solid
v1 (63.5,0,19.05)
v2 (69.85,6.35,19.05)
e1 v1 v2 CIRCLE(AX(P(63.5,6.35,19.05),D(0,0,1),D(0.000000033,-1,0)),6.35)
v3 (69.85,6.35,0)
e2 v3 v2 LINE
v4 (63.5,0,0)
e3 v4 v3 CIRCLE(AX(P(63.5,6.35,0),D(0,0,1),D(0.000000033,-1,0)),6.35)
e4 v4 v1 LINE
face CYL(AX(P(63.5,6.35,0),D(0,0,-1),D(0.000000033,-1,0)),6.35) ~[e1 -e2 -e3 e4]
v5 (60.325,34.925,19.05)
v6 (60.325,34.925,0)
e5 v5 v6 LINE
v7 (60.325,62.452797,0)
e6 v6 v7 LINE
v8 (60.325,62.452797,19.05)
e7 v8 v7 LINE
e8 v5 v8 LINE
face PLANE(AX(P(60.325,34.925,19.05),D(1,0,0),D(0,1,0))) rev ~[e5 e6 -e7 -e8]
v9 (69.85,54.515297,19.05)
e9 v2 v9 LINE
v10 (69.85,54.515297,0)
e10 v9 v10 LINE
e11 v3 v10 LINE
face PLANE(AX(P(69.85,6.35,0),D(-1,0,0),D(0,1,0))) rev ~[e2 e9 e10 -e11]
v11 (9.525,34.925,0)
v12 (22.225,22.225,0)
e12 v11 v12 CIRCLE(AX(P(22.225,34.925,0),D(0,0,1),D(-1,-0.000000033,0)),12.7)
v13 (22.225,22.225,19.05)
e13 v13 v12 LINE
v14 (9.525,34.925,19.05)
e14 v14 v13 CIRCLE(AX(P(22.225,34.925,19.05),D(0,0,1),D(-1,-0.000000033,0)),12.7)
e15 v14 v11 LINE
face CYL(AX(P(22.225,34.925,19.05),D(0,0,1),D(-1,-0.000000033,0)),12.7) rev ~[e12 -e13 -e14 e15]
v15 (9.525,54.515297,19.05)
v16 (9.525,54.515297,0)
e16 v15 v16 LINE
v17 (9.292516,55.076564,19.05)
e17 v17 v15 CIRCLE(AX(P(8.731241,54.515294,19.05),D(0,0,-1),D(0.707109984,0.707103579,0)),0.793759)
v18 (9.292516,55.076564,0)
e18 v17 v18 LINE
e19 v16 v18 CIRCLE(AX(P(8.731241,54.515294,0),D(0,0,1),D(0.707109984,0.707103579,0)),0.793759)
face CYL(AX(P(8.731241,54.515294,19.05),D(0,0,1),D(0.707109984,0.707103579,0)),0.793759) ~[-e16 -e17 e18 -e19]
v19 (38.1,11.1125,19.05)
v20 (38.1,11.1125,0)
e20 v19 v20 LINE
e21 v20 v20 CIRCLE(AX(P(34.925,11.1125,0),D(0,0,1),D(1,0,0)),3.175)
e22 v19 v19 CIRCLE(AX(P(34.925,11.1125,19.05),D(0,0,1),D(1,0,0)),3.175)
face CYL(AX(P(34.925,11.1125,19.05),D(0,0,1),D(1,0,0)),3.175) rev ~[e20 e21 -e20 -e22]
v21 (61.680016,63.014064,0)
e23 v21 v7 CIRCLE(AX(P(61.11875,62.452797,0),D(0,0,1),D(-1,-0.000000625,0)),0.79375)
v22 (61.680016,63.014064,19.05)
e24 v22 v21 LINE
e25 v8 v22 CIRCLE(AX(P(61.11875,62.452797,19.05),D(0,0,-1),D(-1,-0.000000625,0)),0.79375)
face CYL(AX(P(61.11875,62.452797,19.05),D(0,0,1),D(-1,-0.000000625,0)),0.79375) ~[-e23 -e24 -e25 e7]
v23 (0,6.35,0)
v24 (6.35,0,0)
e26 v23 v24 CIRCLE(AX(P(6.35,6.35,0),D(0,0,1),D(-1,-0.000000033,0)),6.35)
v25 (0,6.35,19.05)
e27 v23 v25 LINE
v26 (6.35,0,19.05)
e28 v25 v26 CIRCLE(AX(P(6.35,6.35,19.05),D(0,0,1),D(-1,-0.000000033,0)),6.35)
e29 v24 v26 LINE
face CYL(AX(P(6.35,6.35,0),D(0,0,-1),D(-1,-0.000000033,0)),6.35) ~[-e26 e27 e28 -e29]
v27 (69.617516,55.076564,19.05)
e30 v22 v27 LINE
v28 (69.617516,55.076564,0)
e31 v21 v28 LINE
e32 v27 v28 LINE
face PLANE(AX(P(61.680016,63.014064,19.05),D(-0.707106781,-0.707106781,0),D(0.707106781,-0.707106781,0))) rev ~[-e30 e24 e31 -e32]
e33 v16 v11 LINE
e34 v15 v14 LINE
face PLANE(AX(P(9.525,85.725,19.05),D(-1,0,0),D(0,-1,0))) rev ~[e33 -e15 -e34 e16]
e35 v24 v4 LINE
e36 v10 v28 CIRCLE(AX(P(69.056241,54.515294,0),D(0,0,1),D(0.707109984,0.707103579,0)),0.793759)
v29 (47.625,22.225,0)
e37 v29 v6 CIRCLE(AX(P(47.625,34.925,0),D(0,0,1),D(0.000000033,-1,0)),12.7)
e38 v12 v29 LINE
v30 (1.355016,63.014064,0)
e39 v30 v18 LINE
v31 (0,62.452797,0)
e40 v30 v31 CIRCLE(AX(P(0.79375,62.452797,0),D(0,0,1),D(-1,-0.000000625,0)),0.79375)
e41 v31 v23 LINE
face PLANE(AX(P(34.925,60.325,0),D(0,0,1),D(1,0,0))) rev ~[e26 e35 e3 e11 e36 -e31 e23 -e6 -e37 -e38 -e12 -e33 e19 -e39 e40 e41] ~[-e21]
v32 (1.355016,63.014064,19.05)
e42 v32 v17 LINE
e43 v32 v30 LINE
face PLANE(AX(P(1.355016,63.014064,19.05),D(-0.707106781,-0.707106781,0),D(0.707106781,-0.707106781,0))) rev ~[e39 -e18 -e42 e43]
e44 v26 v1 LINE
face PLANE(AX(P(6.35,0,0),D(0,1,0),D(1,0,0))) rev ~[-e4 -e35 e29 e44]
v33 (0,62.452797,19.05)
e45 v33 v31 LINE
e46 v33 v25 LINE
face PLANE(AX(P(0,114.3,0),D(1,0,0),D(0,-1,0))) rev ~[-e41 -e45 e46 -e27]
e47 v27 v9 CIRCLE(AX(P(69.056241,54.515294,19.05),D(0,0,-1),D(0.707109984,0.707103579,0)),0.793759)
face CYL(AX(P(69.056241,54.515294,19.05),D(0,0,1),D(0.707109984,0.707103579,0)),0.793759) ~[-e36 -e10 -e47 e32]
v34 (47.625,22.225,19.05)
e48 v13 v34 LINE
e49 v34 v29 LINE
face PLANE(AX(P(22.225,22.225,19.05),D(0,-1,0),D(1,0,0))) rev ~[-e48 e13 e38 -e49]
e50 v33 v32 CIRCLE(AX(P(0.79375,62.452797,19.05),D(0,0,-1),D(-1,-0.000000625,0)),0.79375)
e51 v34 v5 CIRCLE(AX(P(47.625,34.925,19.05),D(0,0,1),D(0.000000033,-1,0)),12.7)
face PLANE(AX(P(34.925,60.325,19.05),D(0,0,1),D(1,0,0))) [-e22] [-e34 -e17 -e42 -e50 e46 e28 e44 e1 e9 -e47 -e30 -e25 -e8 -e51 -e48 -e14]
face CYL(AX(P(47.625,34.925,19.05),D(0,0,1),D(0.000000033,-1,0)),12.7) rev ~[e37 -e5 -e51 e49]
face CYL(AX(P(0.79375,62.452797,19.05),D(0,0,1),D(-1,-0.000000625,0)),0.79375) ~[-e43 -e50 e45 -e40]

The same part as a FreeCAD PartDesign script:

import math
import FreeCAD as App
import Part
import Sketcher

V = App.Vector
Q = App.Units.Quantity

doc = App.newDocument("Part")
body = doc.addObject("PartDesign::Body", "Body")

sketch1 = body.newObject("Sketcher::SketchObject", "Sketch")
sketch1.AttachmentSupport = (doc.getObject("XY_Plane"), [""])
sketch1.MapMode = "FlatFace"
sketch1.addGeometry(Part.ArcOfCircle(Part.Circle(V(6, 6, 0), V(0, 0, 1), 6), math.radians(-180), math.radians(-90)), False)
sketch1.addGeometry(Part.LineSegment(V(6, 0, 0), V(64, 0, 0)), False)
sketch1.addGeometry(Part.ArcOfCircle(Part.Circle(V(63, 6, 0), V(0, 0, 1), 6), math.radians(-90), math.radians(0)), False)
sketch1.addGeometry(Part.LineSegment(V(70, 6, 0), V(70, 114, 0)), False)
sketch1.addGeometry(Part.ArcOfCircle(Part.Circle(V(63, 114, 0), V(0, 0, 1), 6), math.radians(0), math.radians(90)), False)
sketch1.addGeometry(Part.LineSegment(V(64, 121, 0), V(6, 121, 0)), False)
sketch1.addGeometry(Part.ArcOfCircle(Part.Circle(V(6, 114, 0), V(0, 0, 1), 6), math.radians(90), math.radians(180)), False)
sketch1.addGeometry(Part.LineSegment(V(0, 114, 0), V(0, 6, 0)), False)
sketch1.addConstraint(Sketcher.Constraint("Tangent", 0, 2, 1, 1))
sketch1.addConstraint(Sketcher.Constraint("Tangent", 1, 2, 2, 1))
sketch1.addConstraint(Sketcher.Constraint("Tangent", 2, 2, 3, 1))
sketch1.addConstraint(Sketcher.Constraint("Tangent", 3, 2, 4, 1))
sketch1.addConstraint(Sketcher.Constraint("Tangent", 4, 2, 5, 1))
sketch1.addConstraint(Sketcher.Constraint("Tangent", 5, 2, 6, 1))
sketch1.addConstraint(Sketcher.Constraint("Tangent", 6, 2, 7, 1))
sketch1.addConstraint(Sketcher.Constraint("Tangent", 7, 2, 0, 1))
sketch1.addConstraint(Sketcher.Constraint("Horizontal", 1))
sketch1.addConstraint(Sketcher.Constraint("Vertical", 3))
sketch1.addConstraint(Sketcher.Constraint("Horizontal", 5))
sketch1.addConstraint(Sketcher.Constraint("Vertical", 7))
sketch1.addConstraint(Sketcher.Constraint("Equal", 0, 2))
sketch1.addConstraint(Sketcher.Constraint("Equal", 2, 4))
sketch1.addConstraint(Sketcher.Constraint("Equal", 4, 6))
sketch1.addConstraint(Sketcher.Constraint("PointOnObject", 0, 2, -1))
sketch1.addConstraint(Sketcher.Constraint("PointOnObject", 6, 2, -2))
sketch1.addConstraint(Sketcher.Constraint("Radius", 0, Q("0.25 in")))
sketch1.addConstraint(Sketcher.Constraint("DistanceX", 1, 1, 1, 2, Q("2.25 in")))
sketch1.addConstraint(Sketcher.Constraint("DistanceY", 3, 1, 3, 2, Q("4.25 in")))
pad1 = body.newObject("PartDesign::Pad", "Pad")
pad1.Profile = sketch1
pad1.Length = Q("0.75 in")

sketch2 = body.newObject("Sketcher::SketchObject", "Sketch001")
sketch2.AttachmentSupport = (doc.getObject("XY_Plane"), [""])
sketch2.MapMode = "FlatFace"
sketch2.AttachmentOffset = App.Placement(V(0, 0, 0.75 * 25.4), App.Rotation())
sketch2.addGeometry(Part.Circle(V(34.9, 109.5, 0), V(0, 0, 1), 3.2), False)
sketch2.addGeometry(Part.Circle(V(34.9, 11.1, 0), V(0, 0, 1), 3.2), False)
sketch2.addGeometry(Part.LineSegment(V(47.6, 98.4, 0), V(22.2, 98.4, 0)), False)
sketch2.addGeometry(Part.ArcOfCircle(Part.Circle(V(22.2, 85.7, 0), V(0, 0, 1), 12.7), math.radians(90), math.radians(180)), False)
sketch2.addGeometry(Part.LineSegment(V(9.5, 85.7, 0), V(9.5, 34.9, 0)), False)
sketch2.addGeometry(Part.ArcOfCircle(Part.Circle(V(22.2, 34.9, 0), V(0, 0, 1), 12.7), math.radians(-180), math.radians(-90)), False)
sketch2.addGeometry(Part.LineSegment(V(22.2, 22.2, 0), V(47.6, 22.2, 0)), False)
sketch2.addGeometry(Part.ArcOfCircle(Part.Circle(V(47.6, 34.9, 0), V(0, 0, 1), 12.7), math.radians(-90), math.radians(0)), False)
sketch2.addGeometry(Part.LineSegment(V(60.3, 34.9, 0), V(60.3, 85.7, 0)), False)
sketch2.addGeometry(Part.ArcOfCircle(Part.Circle(V(47.6, 85.7, 0), V(0, 0, 1), 12.7), math.radians(0), math.radians(90)), False)
sketch2.addConstraint(Sketcher.Constraint("Tangent", 2, 2, 3, 1))
sketch2.addConstraint(Sketcher.Constraint("Tangent", 3, 2, 4, 1))
sketch2.addConstraint(Sketcher.Constraint("Tangent", 4, 2, 5, 1))
sketch2.addConstraint(Sketcher.Constraint("Tangent", 5, 2, 6, 1))
sketch2.addConstraint(Sketcher.Constraint("Tangent", 6, 2, 7, 1))
sketch2.addConstraint(Sketcher.Constraint("Tangent", 7, 2, 8, 1))
sketch2.addConstraint(Sketcher.Constraint("Tangent", 8, 2, 9, 1))
sketch2.addConstraint(Sketcher.Constraint("Tangent", 9, 2, 2, 1))
sketch2.addConstraint(Sketcher.Constraint("Horizontal", 2))
sketch2.addConstraint(Sketcher.Constraint("Vertical", 4))
sketch2.addConstraint(Sketcher.Constraint("Horizontal", 6))
sketch2.addConstraint(Sketcher.Constraint("Vertical", 8))
sketch2.addConstraint(Sketcher.Constraint("Equal", 0, 1))
sketch2.addConstraint(Sketcher.Constraint("Equal", 3, 5))
sketch2.addConstraint(Sketcher.Constraint("Equal", 5, 7))
sketch2.addConstraint(Sketcher.Constraint("Equal", 7, 9))
sketch2.addConstraint(Sketcher.Constraint("Vertical", 0, 3, 1, 3))
sketch2.addConstraint(Sketcher.Constraint("Radius", 3, Q("0.5 in")))
sketch2.addConstraint(Sketcher.Constraint("Diameter", 0, Q("0.25 in")))
sketch2.addConstraint(Sketcher.Constraint("DistanceX", 2, 2, 2, 1, Q("1 in")))
sketch2.addConstraint(Sketcher.Constraint("DistanceY", 4, 2, 4, 1, Q("2 in")))
sketch2.addConstraint(Sketcher.Constraint("DistanceX", 3, 2, 0, 3, Q("1 in")))
sketch2.addConstraint(Sketcher.Constraint("DistanceX", -1, 1, 0, 3, Q("1.375 in")))
sketch2.addConstraint(Sketcher.Constraint("DistanceY", -1, 1, 0, 3, Q("4.3125 in")))
sketch2.addConstraint(Sketcher.Constraint("DistanceY", -1, 1, 1, 3, Q("0.4375 in")))
sketch2.addConstraint(Sketcher.Constraint("DistanceY", -1, 1, 3, 3, Q("3.375 in")))
pocket1 = body.newObject("PartDesign::Pocket", "Pocket")
pocket1.Profile = sketch2
pocket1.Type = "ThroughAll"

sketch3 = body.newObject("Sketcher::SketchObject", "Sketch002")
sketch3.AttachmentSupport = (doc.getObject("XY_Plane"), [""])
sketch3.MapMode = "FlatFace"
sketch3.AttachmentOffset = App.Placement(V(0, 0, 0.75 * 25.4), App.Rotation())
sketch3.addGeometry(Part.ArcOfCircle(Part.Circle(V(0.8, 62.5, 0), V(0, 0, 1), 0.8), math.radians(45), math.radians(180)), False)
sketch3.addGeometry(Part.LineSegment(V(1.4, 63, 0), V(9.3, 55.1, 0)), False)
sketch3.addGeometry(Part.ArcOfCircle(Part.Circle(V(8.7, 54.5, 0), V(0, 0, 1), 0.8), math.radians(0), math.radians(45)), False)
sketch3.addGeometry(Part.LineSegment(V(9.5, 54.5, 0), V(9.5, 85.7, 0)), False)
sketch3.addGeometry(Part.ArcOfCircle(Part.Circle(V(22.2, 85.7, 0), V(0, 0, 1), 12.7), math.radians(90), math.radians(180)), False)
sketch3.addGeometry(Part.LineSegment(V(22.2, 98.4, 0), V(47.6, 98.4, 0)), False)
sketch3.addGeometry(Part.ArcOfCircle(Part.Circle(V(47.6, 85.7, 0), V(0, 0, 1), 12.7), math.radians(0), math.radians(90)), False)
sketch3.addGeometry(Part.LineSegment(V(60.3, 85.7, 0), V(60.3, 62.5, 0)), False)
sketch3.addGeometry(Part.ArcOfCircle(Part.Circle(V(61.1, 62.5, 0), V(0, 0, 1), 0.8), math.radians(45), math.radians(180)), False)
sketch3.addGeometry(Part.LineSegment(V(61.7, 63, 0), V(69.6, 55.1, 0)), False)
sketch3.addGeometry(Part.ArcOfCircle(Part.Circle(V(69.1, 54.5, 0), V(0, 0, 1), 0.8), math.radians(0), math.radians(45)), False)
sketch3.addGeometry(Part.LineSegment(V(69.8, 54.5, 0), V(69.8, 114.3, 0)), False)
sketch3.addGeometry(Part.ArcOfCircle(Part.Circle(V(63.5, 114.3, 0), V(0, 0, 1), 6.4), math.radians(0), math.radians(90)), False)
sketch3.addGeometry(Part.LineSegment(V(63.5, 120.7, 0), V(6.3, 120.7, 0)), False)
sketch3.addGeometry(Part.ArcOfCircle(Part.Circle(V(6.4, 114.3, 0), V(0, 0, 1), 6.4), math.radians(90), math.radians(180)), False)
sketch3.addGeometry(Part.LineSegment(V(0, 114.3, 0), V(0, 62.5, 0)), False)
sketch3.addConstraint(Sketcher.Constraint("Tangent", 0, 1, 1, 1))
sketch3.addConstraint(Sketcher.Constraint("Coincident", 1, 2, 2, 2))
sketch3.addConstraint(Sketcher.Constraint("Coincident", 2, 1, 3, 1))
sketch3.addConstraint(Sketcher.Constraint("Tangent", 3, 2, 4, 2))
sketch3.addConstraint(Sketcher.Constraint("Tangent", 4, 1, 5, 1))
sketch3.addConstraint(Sketcher.Constraint("Tangent", 5, 2, 6, 2))
sketch3.addConstraint(Sketcher.Constraint("Tangent", 6, 1, 7, 1))
sketch3.addConstraint(Sketcher.Constraint("Tangent", 7, 2, 8, 2))
sketch3.addConstraint(Sketcher.Constraint("Tangent", 8, 1, 9, 1))
sketch3.addConstraint(Sketcher.Constraint("Coincident", 9, 2, 10, 2))
sketch3.addConstraint(Sketcher.Constraint("Coincident", 10, 1, 11, 1))
sketch3.addConstraint(Sketcher.Constraint("Tangent", 11, 2, 12, 1))
sketch3.addConstraint(Sketcher.Constraint("Tangent", 12, 2, 13, 1))
sketch3.addConstraint(Sketcher.Constraint("Tangent", 13, 2, 14, 1))
sketch3.addConstraint(Sketcher.Constraint("Tangent", 14, 2, 15, 1))
sketch3.addConstraint(Sketcher.Constraint("Tangent", 15, 2, 0, 2))
sketch3.addConstraint(Sketcher.Constraint("Vertical", 3))
sketch3.addConstraint(Sketcher.Constraint("Horizontal", 5))
sketch3.addConstraint(Sketcher.Constraint("Vertical", 7))
sketch3.addConstraint(Sketcher.Constraint("Vertical", 11))
sketch3.addConstraint(Sketcher.Constraint("Horizontal", 13))
sketch3.addConstraint(Sketcher.Constraint("Vertical", 15))
sketch3.addConstraint(Sketcher.Constraint("Equal", 4, 6))
sketch3.addConstraint(Sketcher.Constraint("Equal", 0, 8))
sketch3.addConstraint(Sketcher.Constraint("Equal", 2, 10))
sketch3.addConstraint(Sketcher.Constraint("Equal", 12, 14))
sketch3.addConstraint(Sketcher.Constraint("PointOnObject", 14, 2, -2))
sketch3.addConstraint(Sketcher.Constraint("Parallel", 1, 9))
sketch3.addConstraint(Sketcher.Constraint("Horizontal", 0, 3, 8, 3))
sketch3.addConstraint(Sketcher.Constraint("Horizontal", 2, 3, 10, 3))
sketch3.addConstraint(Sketcher.Constraint("Horizontal", 1, 2, 9, 2))
sketch3.addConstraint(Sketcher.Constraint("Horizontal", 2, 1, 10, 1))
sketch3.addConstraint(Sketcher.Constraint("Radius", 4, Q("0.5 in")))
sketch3.addConstraint(Sketcher.Constraint("DistanceX", 5, 1, 5, 2, Q("1 in")))
sketch3.addConstraint(Sketcher.Constraint("Radius", 12, Q("0.25 in")))
sketch3.addConstraint(Sketcher.Constraint("Angle", 1, Q("-45 deg")))
sketch3.addConstraint(Sketcher.Constraint("Radius", 0, Q("0.03125 in")))
sketch3.addConstraint(Sketcher.Constraint("DistanceX", 13, 2, 13, 1, Q("2.25 in")))
sketch3.addConstraint(Sketcher.Constraint("DistanceY", -1, 1, 12, 3, Q("4.5 in")))
sketch3.addConstraint(Sketcher.Constraint("DistanceY", -1, 1, 4, 3, Q("3.375 in")))
sketch3.addConstraint(Sketcher.Constraint("Radius", 2, 0.793759))
sketch3.addConstraint(Sketcher.Constraint("DistanceX", 0, 1, 1, 2, Q("0.3125 in")))
sketch3.addConstraint(Sketcher.Constraint("DistanceY", 2, 1, 0, 3, Q("0.3125 in")))
sketch3.addConstraint(Sketcher.Constraint("DistanceY", 3, 1, 3, 2, 31.209703))
pocket2 = body.newObject("PartDesign::Pocket", "Pocket001")
pocket2.Profile = sketch3
pocket2.Type = "ThroughAll"

doc.recompute()
